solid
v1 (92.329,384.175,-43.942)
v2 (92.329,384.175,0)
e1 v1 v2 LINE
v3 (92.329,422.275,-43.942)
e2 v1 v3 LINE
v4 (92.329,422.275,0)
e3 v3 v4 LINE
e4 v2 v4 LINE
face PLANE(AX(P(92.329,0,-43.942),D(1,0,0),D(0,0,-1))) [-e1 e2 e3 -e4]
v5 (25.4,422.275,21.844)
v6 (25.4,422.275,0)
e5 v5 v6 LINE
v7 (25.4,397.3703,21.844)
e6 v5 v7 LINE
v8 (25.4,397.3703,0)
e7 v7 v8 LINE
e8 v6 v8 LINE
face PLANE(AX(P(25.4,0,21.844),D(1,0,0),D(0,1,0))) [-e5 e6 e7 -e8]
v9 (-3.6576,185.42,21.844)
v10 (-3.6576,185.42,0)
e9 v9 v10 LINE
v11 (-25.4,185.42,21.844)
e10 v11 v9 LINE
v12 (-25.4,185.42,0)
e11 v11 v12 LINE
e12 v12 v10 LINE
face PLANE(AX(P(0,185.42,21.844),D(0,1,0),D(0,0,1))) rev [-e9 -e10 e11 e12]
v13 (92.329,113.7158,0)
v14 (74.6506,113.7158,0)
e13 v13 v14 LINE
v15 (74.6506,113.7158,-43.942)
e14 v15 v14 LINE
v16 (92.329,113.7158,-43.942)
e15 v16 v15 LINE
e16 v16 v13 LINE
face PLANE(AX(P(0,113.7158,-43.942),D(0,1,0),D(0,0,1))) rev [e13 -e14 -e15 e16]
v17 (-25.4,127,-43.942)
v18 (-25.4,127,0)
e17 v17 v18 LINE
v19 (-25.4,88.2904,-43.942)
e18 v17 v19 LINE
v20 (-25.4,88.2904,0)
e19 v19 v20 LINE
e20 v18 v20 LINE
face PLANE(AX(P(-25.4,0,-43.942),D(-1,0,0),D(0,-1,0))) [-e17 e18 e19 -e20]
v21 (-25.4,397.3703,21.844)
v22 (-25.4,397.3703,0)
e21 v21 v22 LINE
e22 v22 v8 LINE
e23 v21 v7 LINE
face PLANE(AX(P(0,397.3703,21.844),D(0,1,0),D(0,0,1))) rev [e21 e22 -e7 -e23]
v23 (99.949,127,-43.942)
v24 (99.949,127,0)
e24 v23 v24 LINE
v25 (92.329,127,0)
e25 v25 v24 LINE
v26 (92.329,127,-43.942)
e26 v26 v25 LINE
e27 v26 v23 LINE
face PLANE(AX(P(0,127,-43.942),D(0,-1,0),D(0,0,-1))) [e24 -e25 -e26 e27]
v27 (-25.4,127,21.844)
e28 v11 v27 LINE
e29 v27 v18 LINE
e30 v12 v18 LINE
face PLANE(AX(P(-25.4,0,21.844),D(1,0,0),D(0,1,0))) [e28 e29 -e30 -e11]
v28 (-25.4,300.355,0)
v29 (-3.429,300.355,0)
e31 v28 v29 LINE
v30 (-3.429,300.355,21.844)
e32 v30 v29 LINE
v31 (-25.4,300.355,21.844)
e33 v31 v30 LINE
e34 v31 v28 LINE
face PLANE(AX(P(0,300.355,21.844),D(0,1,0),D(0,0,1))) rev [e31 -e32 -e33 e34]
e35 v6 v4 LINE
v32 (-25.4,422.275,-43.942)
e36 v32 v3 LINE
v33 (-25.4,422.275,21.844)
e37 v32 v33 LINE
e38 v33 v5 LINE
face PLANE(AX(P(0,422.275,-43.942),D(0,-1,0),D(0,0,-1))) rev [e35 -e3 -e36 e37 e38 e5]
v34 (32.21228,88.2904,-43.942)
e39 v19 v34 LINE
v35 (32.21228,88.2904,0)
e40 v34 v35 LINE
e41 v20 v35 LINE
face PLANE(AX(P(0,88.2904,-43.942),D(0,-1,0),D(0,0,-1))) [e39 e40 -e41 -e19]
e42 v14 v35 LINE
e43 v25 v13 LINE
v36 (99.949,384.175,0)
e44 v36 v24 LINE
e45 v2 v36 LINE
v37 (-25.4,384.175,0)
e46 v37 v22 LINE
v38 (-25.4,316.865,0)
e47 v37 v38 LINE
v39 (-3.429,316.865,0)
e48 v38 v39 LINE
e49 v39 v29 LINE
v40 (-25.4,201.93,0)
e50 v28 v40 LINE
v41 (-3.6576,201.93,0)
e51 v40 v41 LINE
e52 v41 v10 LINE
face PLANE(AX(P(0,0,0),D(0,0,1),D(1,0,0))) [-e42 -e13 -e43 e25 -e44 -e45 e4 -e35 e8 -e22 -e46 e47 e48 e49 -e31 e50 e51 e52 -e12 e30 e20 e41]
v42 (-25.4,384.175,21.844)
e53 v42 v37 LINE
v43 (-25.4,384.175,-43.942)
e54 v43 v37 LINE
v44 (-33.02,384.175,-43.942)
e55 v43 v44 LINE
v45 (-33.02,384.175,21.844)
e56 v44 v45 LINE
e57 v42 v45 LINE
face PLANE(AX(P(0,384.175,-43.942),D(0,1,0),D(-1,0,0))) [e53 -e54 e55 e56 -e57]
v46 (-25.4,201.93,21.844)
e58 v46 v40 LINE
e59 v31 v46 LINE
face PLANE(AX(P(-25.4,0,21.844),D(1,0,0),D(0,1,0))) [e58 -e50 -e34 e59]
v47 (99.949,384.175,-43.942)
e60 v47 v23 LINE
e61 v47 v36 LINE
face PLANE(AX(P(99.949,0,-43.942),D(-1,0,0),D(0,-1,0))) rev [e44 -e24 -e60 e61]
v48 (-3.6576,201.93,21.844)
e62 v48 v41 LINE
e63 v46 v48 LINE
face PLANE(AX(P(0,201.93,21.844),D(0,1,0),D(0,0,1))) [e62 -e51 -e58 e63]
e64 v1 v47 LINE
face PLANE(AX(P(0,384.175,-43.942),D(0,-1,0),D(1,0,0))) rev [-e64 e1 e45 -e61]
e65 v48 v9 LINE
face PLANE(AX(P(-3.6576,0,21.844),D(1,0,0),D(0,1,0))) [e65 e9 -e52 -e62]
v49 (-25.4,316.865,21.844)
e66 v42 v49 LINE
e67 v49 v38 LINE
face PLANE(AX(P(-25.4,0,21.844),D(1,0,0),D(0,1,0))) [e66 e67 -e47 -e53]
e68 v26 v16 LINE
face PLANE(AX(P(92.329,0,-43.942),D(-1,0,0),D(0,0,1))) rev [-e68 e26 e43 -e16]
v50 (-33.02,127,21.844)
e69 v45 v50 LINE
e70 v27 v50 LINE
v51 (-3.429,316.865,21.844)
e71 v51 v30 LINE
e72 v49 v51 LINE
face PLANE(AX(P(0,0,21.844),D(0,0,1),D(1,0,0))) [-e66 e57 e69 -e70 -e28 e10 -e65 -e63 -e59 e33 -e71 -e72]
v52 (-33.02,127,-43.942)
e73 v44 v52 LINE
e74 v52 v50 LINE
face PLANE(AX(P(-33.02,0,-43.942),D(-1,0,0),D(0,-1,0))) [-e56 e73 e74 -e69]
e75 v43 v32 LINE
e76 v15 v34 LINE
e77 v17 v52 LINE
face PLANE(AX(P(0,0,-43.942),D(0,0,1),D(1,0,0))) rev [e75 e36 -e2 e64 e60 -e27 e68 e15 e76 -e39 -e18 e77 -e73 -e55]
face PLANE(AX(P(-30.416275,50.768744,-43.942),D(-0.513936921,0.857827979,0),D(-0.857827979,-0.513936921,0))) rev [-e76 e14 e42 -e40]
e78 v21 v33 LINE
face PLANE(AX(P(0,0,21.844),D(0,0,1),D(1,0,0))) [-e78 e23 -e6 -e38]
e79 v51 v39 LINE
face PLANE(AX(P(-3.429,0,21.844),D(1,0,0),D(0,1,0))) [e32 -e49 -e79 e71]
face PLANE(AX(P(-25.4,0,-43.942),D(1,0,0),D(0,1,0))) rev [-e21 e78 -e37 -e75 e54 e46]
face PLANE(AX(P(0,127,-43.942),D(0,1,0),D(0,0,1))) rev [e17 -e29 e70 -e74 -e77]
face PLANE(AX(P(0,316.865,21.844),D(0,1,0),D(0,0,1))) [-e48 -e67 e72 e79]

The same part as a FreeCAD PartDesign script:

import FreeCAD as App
import Part
import Sketcher
from FreeCAD import Vector
Q = App.Units.Quantity

doc = App.newDocument("Part")
body = doc.addObject("PartDesign::Body", "Body")

# Sketch on XY plane
sketch1 = body.newObject("Sketcher::SketchObject", "Sketch")
sketch1.AttachmentSupport = (doc.getObject("XY_Plane"), [""])
sketch1.MapMode = "FlatFace"
sketch1.addGeometry([
    Part.LineSegment(Vector(-25, 422, 0), Vector(-25, 384, 0)),  # 0
    Part.LineSegment(Vector(-25, 384, 0), Vector(-33, 384, 0)),  # 1
    Part.LineSegment(Vector(-33, 384, 0), Vector(-33, 127, 0)),  # 2
    Part.LineSegment(Vector(-33, 127, 0), Vector(-25, 127, 0)),  # 3
    Part.LineSegment(Vector(-25, 127, 0), Vector(-25, 88, 0)),  # 4
    Part.LineSegment(Vector(-25, 88, 0), Vector(32, 88, 0)),  # 5
    Part.LineSegment(Vector(32, 88, 0), Vector(75, 114, 0)),  # 6
    Part.LineSegment(Vector(75, 114, 0), Vector(92, 114, 0)),  # 7
    Part.LineSegment(Vector(92, 114, 0), Vector(92, 127, 0)),  # 8
    Part.LineSegment(Vector(92, 127, 0), Vector(100, 127, 0)),  # 9
    Part.LineSegment(Vector(100, 127, 0), Vector(100, 384, 0)),  # 10
    Part.LineSegment(Vector(100, 384, 0), Vector(92, 384, 0)),  # 11
    Part.LineSegment(Vector(92, 384, 0), Vector(92, 422, 0)),  # 12
    Part.LineSegment(Vector(92, 422, 0), Vector(-25, 422, 0)),  # 13
], False)
sketch1.addConstraint([
    Sketcher.Constraint("Coincident", 0, 2, 1, 1),
    Sketcher.Constraint("Coincident", 1, 2, 2, 1),
    Sketcher.Constraint("Coincident", 2, 2, 3, 1),
    Sketcher.Constraint("Coincident", 3, 2, 4, 1),
    Sketcher.Constraint("Coincident", 4, 2, 5, 1),
    Sketcher.Constraint("Coincident", 5, 2, 6, 1),
    Sketcher.Constraint("Coincident", 6, 2, 7, 1),
    Sketcher.Constraint("Coincident", 7, 2, 8, 1),
    Sketcher.Constraint("Coincident", 8, 2, 9, 1),
    Sketcher.Constraint("Coincident", 9, 2, 10, 1),
    Sketcher.Constraint("Coincident", 10, 2, 11, 1),
    Sketcher.Constraint("Coincident", 11, 2, 12, 1),
    Sketcher.Constraint("Coincident", 12, 2, 13, 1),
    Sketcher.Constraint("Coincident", 13, 2, 0, 1),
    Sketcher.Constraint("Vertical", 0),
    Sketcher.Constraint("Horizontal", 1),
    Sketcher.Constraint("Vertical", 2),
    Sketcher.Constraint("Horizontal", 3),
    Sketcher.Constraint("Vertical", 4),
    Sketcher.Constraint("Horizontal", 5),
    Sketcher.Constraint("Horizontal", 7),
    Sketcher.Constraint("Vertical", 8),
    Sketcher.Constraint("Horizontal", 9),
    Sketcher.Constraint("Vertical", 10),
    Sketcher.Constraint("Horizontal", 11),
    Sketcher.Constraint("Vertical", 12),
    Sketcher.Constraint("Horizontal", 13),
    Sketcher.Constraint("Horizontal", 3, 2, 8, 2),
    Sketcher.Constraint("Horizontal", 1, 2, 10, 2),
    Sketcher.Constraint("Vertical", 0, 2, 3, 2),
    Sketcher.Constraint("Vertical", 8, 2, 11, 2),
    Sketcher.Constraint("Equal", 3, 9),
    Sketcher.Constraint("DistanceX", 1, 2, 1, 1, Q("0.3 in")),
    Sketcher.Constraint("DistanceY", 0, 2, 0, 1, Q("1.5 in")),
    Sketcher.Constraint("DistanceX", 0, 2, -1, 1, Q("1 in")),
    Sketcher.Constraint("DistanceY", -1, 1, 2, 2, Q("5 in")),
    Sketcher.Constraint("DistanceX", 7, 1, 7, 2, Q("0.696 in")),
    Sketcher.Constraint("DistanceX", 13, 2, 13, 1, Q("4.635 in")),
    Sketcher.Constraint("DistanceY", 2, 2, 2, 1, Q("10.125 in")),
    Sketcher.Constraint("DistanceY", 4, 2, 4, 1, Q("1.524 in")),
    Sketcher.Constraint("DistanceY", 8, 1, 8, 2, Q("0.523 in")),
    Sketcher.Constraint("DistanceX", 5, 1, 5, 2, Q("2.2682 in")),
])
pad1 = body.newObject("PartDesign::Pad", "Pad")
pad1.Profile = sketch1
pad1.Length = Q("1.73 in")
pad1.Reversed = True

# Sketch on XY plane
sketch2 = body.newObject("Sketcher::SketchObject", "Sketch001")
sketch2.AttachmentSupport = (doc.getObject("XY_Plane"), [""])
sketch2.MapMode = "FlatFace"
sketch2.addGeometry([
    Part.LineSegment(Vector(-33, 384, 0), Vector(-33, 127, 0)),  # 0
    Part.LineSegment(Vector(-33, 127, 0), Vector(-25, 127, 0)),  # 1
    Part.LineSegment(Vector(-25, 127, 0), Vector(-25, 185, 0)),  # 2
    Part.LineSegment(Vector(-25, 185, 0), Vector(-4, 185, 0)),  # 3
    Part.LineSegment(Vector(-4, 185, 0), Vector(-4, 202, 0)),  # 4
    Part.LineSegment(Vector(-4, 202, 0), Vector(-25, 202, 0)),  # 5
    Part.LineSegment(Vector(-25, 202, 0), Vector(-25, 300, 0)),  # 6
    Part.LineSegment(Vector(-25, 300, 0), Vector(-3, 300, 0)),  # 7
    Part.LineSegment(Vector(-3, 300, 0), Vector(-3, 317, 0)),  # 8
    Part.LineSegment(Vector(-3, 317, 0), Vector(-25, 317, 0)),  # 9
    Part.LineSegment(Vector(-25, 317, 0), Vector(-25, 384, 0)),  # 10
    Part.LineSegment(Vector(-25, 384, 0), Vector(-33, 384, 0)),  # 11
    Part.LineSegment(Vector(-25, 422, 0), Vector(-25, 397, 0)),  # 12
    Part.LineSegment(Vector(-25, 397, 0), Vector(25, 397, 0)),  # 13
    Part.LineSegment(Vector(25, 397, 0), Vector(25, 422, 0)),  # 14
    Part.LineSegment(Vector(25, 422, 0), Vector(-25, 422, 0)),  # 15
], False)
sketch2.addConstraint([
    Sketcher.Constraint("Coincident", 0, 2, 1, 1),
    Sketcher.Constraint("Coincident", 1, 2, 2, 1),
    Sketcher.Constraint("Coincident", 2, 2, 3, 1),
    Sketcher.Constraint("Coincident", 3, 2, 4, 1),
    Sketcher.Constraint("Coincident", 4, 2, 5, 1),
    Sketcher.Constraint("Coincident", 5, 2, 6, 1),
    Sketcher.Constraint("Coincident", 6, 2, 7, 1),
    Sketcher.Constraint("Coincident", 7, 2, 8, 1),
    Sketcher.Constraint("Coincident", 8, 2, 9, 1),
    Sketcher.Constraint("Coincident", 9, 2, 10, 1),
    Sketcher.Constraint("Coincident", 10, 2, 11, 1),
    Sketcher.Constraint("Coincident", 11, 2, 0, 1),
    Sketcher.Constraint("Coincident", 12, 2, 13, 1),
    Sketcher.Constraint("Coincident", 13, 2, 14, 1),
    Sketcher.Constraint("Coincident", 14, 2, 15, 1),
    Sketcher.Constraint("Coincident", 15, 2, 12, 1),
    Sketcher.Constraint("Vertical", 0),
    Sketcher.Constraint("Horizontal", 1),
    Sketcher.Constraint("Vertical", 2),
    Sketcher.Constraint("Horizontal", 3),
    Sketcher.Constraint("Vertical", 4),
    Sketcher.Constraint("Horizontal", 5),
    Sketcher.Constraint("Vertical", 6),
    Sketcher.Constraint("Horizontal", 7),
    Sketcher.Constraint("Vertical", 8),
    Sketcher.Constraint("Horizontal", 9),
    Sketcher.Constraint("Vertical", 10),
    Sketcher.Constraint("Horizontal", 11),
    Sketcher.Constraint("Vertical", 12),
    Sketcher.Constraint("Horizontal", 13),
    Sketcher.Constraint("Vertical", 14),
    Sketcher.Constraint("Horizontal", 15),
    Sketcher.Constraint("Vertical", 2, 2, 5, 2),
    Sketcher.Constraint("Vertical", 6, 2, 9, 2),
    Sketcher.Constraint("Vertical", 10, 2, 12, 2),
    Sketcher.Constraint("Equal", 4, 8),
    Sketcher.Constraint("DistanceX", 13, 1, 13, 2, Q("2 in")),
    Sketcher.Constraint("DistanceX", 1, 1, 1, 2, Q("0.3 in")),
    Sketcher.Constraint("DistanceY", 2, 1, 2, 2, Q("2.3 in")),
    Sketcher.Constraint("DistanceY", -1, 1, 0, 2, Q("5 in")),
    Sketcher.Constraint("DistanceX", 1, 2, -1, 1, Q("1 in")),
    Sketcher.Constraint("DistanceY", 4, 1, 4, 2, Q("0.65 in")),
    Sketcher.Constraint("DistanceY", 10, 1, 10, 2, Q("2.65 in")),
    Sketcher.Constraint("DistanceY", 10, 2, 14, 2, Q("1.5 in")),
    Sketcher.Constraint("DistanceX", 3, 1, 3, 2, Q("0.856 in")),
    Sketcher.Constraint("DistanceX", 7, 1, 7, 2, Q("0.865 in")),
    Sketcher.Constraint("DistanceY", 0, 2, 0, 1, Q("10.125 in")),
    Sketcher.Constraint("DistanceY", 12, 2, 12, 1, Q("0.9805 in")),
])
pad2 = body.newObject("PartDesign::Pad", "Pad001")
pad2.Profile = sketch2
pad2.Length = Q("0.86 in")

doc.recompute()
